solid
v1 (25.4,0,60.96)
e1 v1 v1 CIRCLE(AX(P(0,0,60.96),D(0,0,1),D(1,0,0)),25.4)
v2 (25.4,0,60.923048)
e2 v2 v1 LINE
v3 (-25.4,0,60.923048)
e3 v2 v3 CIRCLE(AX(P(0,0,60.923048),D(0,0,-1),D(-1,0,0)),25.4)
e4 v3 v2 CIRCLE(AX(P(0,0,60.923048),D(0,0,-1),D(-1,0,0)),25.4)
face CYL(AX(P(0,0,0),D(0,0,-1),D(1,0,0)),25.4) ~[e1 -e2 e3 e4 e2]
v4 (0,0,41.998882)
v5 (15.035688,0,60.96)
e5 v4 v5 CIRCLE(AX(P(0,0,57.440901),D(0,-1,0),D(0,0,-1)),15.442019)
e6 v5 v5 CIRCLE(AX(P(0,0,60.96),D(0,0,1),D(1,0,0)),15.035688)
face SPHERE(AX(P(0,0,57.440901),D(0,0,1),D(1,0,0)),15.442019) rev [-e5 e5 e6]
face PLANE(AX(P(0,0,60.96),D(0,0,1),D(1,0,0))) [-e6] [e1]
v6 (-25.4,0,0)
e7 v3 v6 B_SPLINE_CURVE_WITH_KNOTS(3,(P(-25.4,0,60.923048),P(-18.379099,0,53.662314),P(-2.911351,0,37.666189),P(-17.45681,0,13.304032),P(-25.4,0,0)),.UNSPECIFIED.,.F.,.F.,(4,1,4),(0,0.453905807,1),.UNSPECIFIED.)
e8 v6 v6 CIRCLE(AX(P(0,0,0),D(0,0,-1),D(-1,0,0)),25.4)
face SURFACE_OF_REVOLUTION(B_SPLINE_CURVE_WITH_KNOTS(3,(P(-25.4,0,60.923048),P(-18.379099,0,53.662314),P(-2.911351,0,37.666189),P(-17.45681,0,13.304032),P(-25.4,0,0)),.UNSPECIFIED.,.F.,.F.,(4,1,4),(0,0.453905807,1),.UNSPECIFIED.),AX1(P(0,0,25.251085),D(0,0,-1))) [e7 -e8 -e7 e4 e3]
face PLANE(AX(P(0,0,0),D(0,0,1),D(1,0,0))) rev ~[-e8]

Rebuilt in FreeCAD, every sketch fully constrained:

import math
import FreeCAD as App
import Part
import Sketcher
from FreeCAD import Vector
Q = App.Units.Quantity

doc = App.newDocument("Part")
body = doc.addObject("PartDesign::Body", "Body")

# Sketch on XY plane
sketch1 = body.newObject("Sketcher::SketchObject", "Sketch")
sketch1.AttachmentSupport = (doc.getObject("XY_Plane"), [""])
sketch1.MapMode = "FlatFace"
sketch1.addGeometry(Part.Circle(Vector(0, 0, 0), Vector(0, 0, 1), 25), False)
sketch1.addConstraint(Sketcher.Constraint("Coincident", 0, 3, -1, 1))
sketch1.addConstraint(Sketcher.Constraint("Diameter", 0, Q("2 in")))
pad1 = body.newObject("PartDesign::Pad", "Pad")
pad1.Profile = sketch1
pad1.Length = Q("2.4 in")

# Sketch on XZ plane
sketch2 = body.newObject("Sketcher::SketchObject", "Sketch001")
sketch2.AttachmentSupport = (doc.getObject("XZ_Plane"), [""])
sketch2.MapMode = "FlatFace"
sketch2.addGeometry(Part.BSplineCurve([Vector(-25.4, 60.923048, 0), Vector(-18.379099, 53.662314, 0), Vector(-2.911351, 37.666189, 0), Vector(-17.45681, 13.304032, 0), Vector(-25.4, 0, 0)], [4, 1, 4], [0, 0.453905807, 1], False, 3, [1, 1, 1, 1, 1], False), False)
sketch2.addGeometry(Part.LineSegment(Vector(-25.4, 60.923048, 0), Vector(-25.4, 0, 0)), False)
sketch2.addConstraint(Sketcher.Constraint("Block", 0))
sketch2.addConstraint(Sketcher.Constraint("Coincident", 0, 1, 1, 1))
sketch2.addConstraint(Sketcher.Constraint("Coincident", 1, 2, 0, 2))
groove = body.newObject("PartDesign::Groove", "Groove")
groove.Profile = sketch2
groove.ReferenceAxis = (sketch2, ["V_Axis"])
groove.Angle = 360

# Sketch on XZ plane
sketch3 = body.newObject("Sketcher::SketchObject", "Sketch002")
sketch3.AttachmentSupport = (doc.getObject("XZ_Plane"), [""])
sketch3.MapMode = "FlatFace"
sketch3.addGeometry(Part.LineSegment(Vector(0, 73, 0), Vector(0, 42, 0)), False)
sketch3.addGeometry(Part.ArcOfCircle(Part.Circle(Vector(0, 57, 0), Vector(0, 0, 1), 15), math.radians(-90), math.radians(90)), False)
sketch3.addConstraint(Sketcher.Constraint("Coincident", 0, 1, 1, 2))
sketch3.addConstraint(Sketcher.Constraint("Coincident", 1, 1, 0, 2))
sketch3.addConstraint(Sketcher.Constraint("Vertical", 0))
sketch3.addConstraint(Sketcher.Constraint("PointOnObject", 1, 3, -2))
sketch3.addConstraint(Sketcher.Constraint("PointOnObject", 0, 1, -2))
sketch3.addConstraint(Sketcher.Constraint("Radius", 1, Q("15.442019 mm")))
sketch3.addConstraint(Sketcher.Constraint("DistanceY", -1, 1, 1, 3, Q("57.440901 mm")))
groove2 = body.newObject("PartDesign::Groove", "Groove001")
groove2.Profile = sketch3
groove2.ReferenceAxis = (sketch3, ["V_Axis"])
groove2.Angle = 360

doc.recompute()
